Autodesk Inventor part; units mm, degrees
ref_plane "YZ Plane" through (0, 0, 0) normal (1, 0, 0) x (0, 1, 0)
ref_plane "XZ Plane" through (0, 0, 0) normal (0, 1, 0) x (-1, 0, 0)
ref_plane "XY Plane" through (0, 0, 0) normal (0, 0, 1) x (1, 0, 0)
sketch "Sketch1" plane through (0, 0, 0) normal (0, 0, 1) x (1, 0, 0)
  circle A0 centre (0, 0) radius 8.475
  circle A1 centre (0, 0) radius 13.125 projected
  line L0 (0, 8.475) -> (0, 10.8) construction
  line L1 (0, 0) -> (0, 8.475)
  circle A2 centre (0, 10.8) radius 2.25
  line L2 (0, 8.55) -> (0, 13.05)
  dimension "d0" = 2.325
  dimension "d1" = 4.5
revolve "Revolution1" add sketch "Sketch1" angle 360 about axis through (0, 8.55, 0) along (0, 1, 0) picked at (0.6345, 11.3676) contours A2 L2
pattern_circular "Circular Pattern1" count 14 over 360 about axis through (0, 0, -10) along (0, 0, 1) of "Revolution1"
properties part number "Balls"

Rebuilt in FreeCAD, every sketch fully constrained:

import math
import FreeCAD as App
import Part
import Sketcher

V = App.Vector
Q = App.Units.Quantity

doc = App.newDocument("Part")
body = doc.addObject("PartDesign::Body", "Body")
body.AllowCompound = True

# Sketch on XY plane
sketch1 = body.newObject("Sketcher::SketchObject", "Sketch")
sketch1.AttachmentSupport = (doc.getObject("XY_Plane"), [""])
sketch1.MapMode = "FlatFace"
sketch1.addGeometry([
    Part.ArcOfCircle(Part.Circle(V(0, 10.8, 0), V(0, 0, 1), 2.25), math.radians(-90), math.radians(90)),
    Part.LineSegment(V(0, 13.05, 0), V(0, 8.55, 0)),
], False)
sketch1.addConstraint([
    Sketcher.Constraint("Coincident", 0, 1, 1, 2),
    Sketcher.Constraint("Coincident", 1, 1, 0, 2),
    Sketcher.Constraint("Vertical", 1),
    Sketcher.Constraint("PointOnObject", 0, 3, -2),
    Sketcher.Constraint("PointOnObject", 0, 1, -2),
    Sketcher.Constraint("Radius", 0, Q("2.25 mm")),
    Sketcher.Constraint("DistanceY", -1, 1, 0, 3, Q("10.8 mm")),
])
revolution = body.newObject("PartDesign::Revolution", "Revolution")
revolution.Profile = sketch1
revolution.ReferenceAxis = (sketch1, ["V_Axis"])
revolution.Angle = 360
doc.recompute()

polarpattern = body.newObject("PartDesign::PolarPattern", "PolarPattern")
polarpattern.Originals = [revolution]
polarpattern.Axis = (doc.getObject("Z_Axis"), [""])
polarpattern.Angle = 360
polarpattern.Occurrences = 14
body.Tip = polarpattern

doc.recompute()
